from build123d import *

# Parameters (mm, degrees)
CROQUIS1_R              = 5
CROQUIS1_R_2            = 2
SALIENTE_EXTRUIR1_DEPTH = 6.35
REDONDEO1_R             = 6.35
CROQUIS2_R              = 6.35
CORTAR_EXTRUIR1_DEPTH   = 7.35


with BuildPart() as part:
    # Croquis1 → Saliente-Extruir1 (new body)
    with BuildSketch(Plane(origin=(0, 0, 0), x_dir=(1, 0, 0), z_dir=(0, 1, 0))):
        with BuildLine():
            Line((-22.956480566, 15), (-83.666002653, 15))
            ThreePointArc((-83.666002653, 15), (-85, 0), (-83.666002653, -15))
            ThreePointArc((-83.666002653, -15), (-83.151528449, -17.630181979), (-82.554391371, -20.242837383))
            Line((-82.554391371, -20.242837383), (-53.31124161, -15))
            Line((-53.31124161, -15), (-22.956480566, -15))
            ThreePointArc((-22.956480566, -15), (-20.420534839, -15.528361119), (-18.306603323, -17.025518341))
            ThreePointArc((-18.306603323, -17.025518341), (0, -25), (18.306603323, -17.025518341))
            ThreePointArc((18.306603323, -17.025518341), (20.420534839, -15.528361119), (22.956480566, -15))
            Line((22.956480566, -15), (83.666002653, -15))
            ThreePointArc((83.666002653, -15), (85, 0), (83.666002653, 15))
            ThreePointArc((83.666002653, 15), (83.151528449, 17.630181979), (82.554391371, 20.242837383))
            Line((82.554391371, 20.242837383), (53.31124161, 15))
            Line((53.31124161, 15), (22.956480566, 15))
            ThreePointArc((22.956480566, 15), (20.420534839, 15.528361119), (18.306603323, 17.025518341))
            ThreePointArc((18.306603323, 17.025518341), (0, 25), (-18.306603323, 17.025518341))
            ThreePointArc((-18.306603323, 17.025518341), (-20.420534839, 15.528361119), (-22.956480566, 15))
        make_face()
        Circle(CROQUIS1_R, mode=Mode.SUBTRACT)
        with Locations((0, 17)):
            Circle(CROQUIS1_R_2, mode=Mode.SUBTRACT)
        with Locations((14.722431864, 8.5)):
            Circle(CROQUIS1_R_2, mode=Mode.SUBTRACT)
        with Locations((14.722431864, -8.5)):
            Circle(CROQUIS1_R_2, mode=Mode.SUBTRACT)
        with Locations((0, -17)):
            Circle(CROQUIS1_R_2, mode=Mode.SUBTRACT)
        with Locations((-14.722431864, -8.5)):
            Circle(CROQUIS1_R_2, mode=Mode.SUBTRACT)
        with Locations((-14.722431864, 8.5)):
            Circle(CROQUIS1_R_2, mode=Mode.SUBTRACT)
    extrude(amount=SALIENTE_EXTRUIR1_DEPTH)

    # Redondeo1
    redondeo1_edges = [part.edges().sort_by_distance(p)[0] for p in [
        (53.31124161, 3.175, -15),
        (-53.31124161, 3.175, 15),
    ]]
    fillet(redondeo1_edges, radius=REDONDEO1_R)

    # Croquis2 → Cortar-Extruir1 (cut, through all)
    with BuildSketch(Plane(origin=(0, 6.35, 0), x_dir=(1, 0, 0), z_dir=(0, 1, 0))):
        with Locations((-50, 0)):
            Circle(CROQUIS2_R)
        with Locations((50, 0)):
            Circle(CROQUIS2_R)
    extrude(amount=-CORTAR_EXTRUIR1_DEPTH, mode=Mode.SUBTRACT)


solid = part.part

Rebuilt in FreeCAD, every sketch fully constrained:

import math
import FreeCAD as App
import Part
import Sketcher


def edges_at(feature, points):
    """Names of the edges that pass closest to the given points."""
    edges = feature.Shape.Edges
    near = lambda p: min(range(len(edges)), key=lambda i: edges[i].distToShape(Part.Vertex(*p))[0])
    return sorted({f"Edge{near(p) + 1}" for p in points})

doc = App.newDocument("Part")
body = doc.addObject("PartDesign::Body", "Body")

# Sketch on XZ plane
sketch1 = doc.addObject("Sketcher::SketchObject", "Sketch")
body.addObject(sketch1)
sketch1.AttachmentSupport = (doc.XZ_Plane, [""])
sketch1.MapMode = "FlatFace"
sketch1.addGeometry([
    Part.LineSegment(App.Vector(-22.956481, -15, 0), App.Vector(-83.666003, -15, 0)),  # 0
    Part.ArcOfCircle(Part.Circle(App.Vector(0, 0, 0), App.Vector(0, 0, 1), 85), math.radians(169.835751), math.radians(190.164249)),  # 1
    Part.ArcOfCircle(Part.Circle(App.Vector(-0.000001, 0, 0), App.Vector(0, 0, 1), 84.999999), math.radians(166.222562), math.radians(169.835751)),  # 2
    Part.LineSegment(App.Vector(-82.554391, 20.242837, 0), App.Vector(-53.311242, 15, 0)),  # 3
    Part.LineSegment(App.Vector(-53.311242, 15, 0), App.Vector(-22.956481, 15, 0)),  # 4
    Part.ArcOfCircle(Part.Circle(App.Vector(-22.956481, 21.35, 0), App.Vector(0, 0, 1), 6.35), math.radians(-90), math.radians(-42.923458)),  # 5
    Part.ArcOfCircle(Part.Circle(App.Vector(0, 0, 0), App.Vector(0, 0, 1), 25), math.radians(42.923458), math.radians(137.076542)),  # 6
    Part.ArcOfCircle(Part.Circle(App.Vector(22.956481, 21.35, 0), App.Vector(0, 0, 1), 6.35), math.radians(-137.076542), math.radians(-90)),  # 7
    Part.LineSegment(App.Vector(22.956481, 15, 0), App.Vector(83.666003, 15, 0)),  # 8
    Part.ArcOfCircle(Part.Circle(App.Vector(0, 0, 0), App.Vector(0, 0, 1), 85), math.radians(-10.164249), math.radians(10.164249)),  # 9
    Part.ArcOfCircle(Part.Circle(App.Vector(0.000001, 0, 0), App.Vector(0, 0, 1), 84.999999), math.radians(-13.777438), math.radians(-10.164249)),  # 10
    Part.LineSegment(App.Vector(82.554391, -20.242837, 0), App.Vector(53.311242, -15, 0)),  # 11
    Part.LineSegment(App.Vector(53.311242, -15, 0), App.Vector(22.956481, -15, 0)),  # 12
    Part.ArcOfCircle(Part.Circle(App.Vector(22.956481, -21.35, 0), App.Vector(0, 0, 1), 6.35), math.radians(90), math.radians(137.076542)),  # 13
    Part.ArcOfCircle(Part.Circle(App.Vector(0, 0, 0), App.Vector(0, 0, 1), 25), math.radians(-137.076542), math.radians(-42.923458)),  # 14
    Part.ArcOfCircle(Part.Circle(App.Vector(-22.956481, -21.35, 0), App.Vector(0, 0, 1), 6.35), math.radians(42.923458), math.radians(90)),  # 15
    Part.Circle(App.Vector(-14.722432, 8.5, 0), App.Vector(0, 0, 1), 2),  # 16
    Part.Circle(App.Vector(0, 17, 0), App.Vector(0, 0, 1), 2),  # 17
    Part.Circle(App.Vector(14.722432, 8.5, 0), App.Vector(0, 0, 1), 2),  # 18
    Part.Circle(App.Vector(-14.722432, -8.5, 0), App.Vector(0, 0, 1), 2),  # 19
    Part.Circle(App.Vector(0, 0, 0), App.Vector(0, 0, 1), 5),  # 20
    Part.Circle(App.Vector(14.722432, -8.5, 0), App.Vector(0, 0, 1), 2),  # 21
    Part.Circle(App.Vector(0, -17, 0), App.Vector(0, 0, 1), 2),  # 22
], False)
sketch1.addConstraint([
    Sketcher.Constraint("Coincident", 0, 2, 1, 2),
    Sketcher.Constraint("Tangent", 1, 1, 2, 2),
    Sketcher.Constraint("Coincident", 2, 1, 3, 1),
    Sketcher.Constraint("Coincident", 3, 2, 4, 1),
    Sketcher.Constraint("Tangent", 4, 2, 5, 1),
    Sketcher.Constraint("Tangent", 5, 2, 6, 2),
    Sketcher.Constraint("Tangent", 6, 1, 7, 1),
    Sketcher.Constraint("Tangent", 7, 2, 8, 1),
    Sketcher.Constraint("Coincident", 8, 2, 9, 2),
    Sketcher.Constraint("Tangent", 9, 1, 10, 2),
    Sketcher.Constraint("Coincident", 10, 1, 11, 1),
    Sketcher.Constraint("Coincident", 11, 2, 12, 1),
    Sketcher.Constraint("Tangent", 12, 2, 13, 1),
    Sketcher.Constraint("Tangent", 13, 2, 14, 2),
    Sketcher.Constraint("Tangent", 14, 1, 15, 1),
    Sketcher.Constraint("Tangent", 15, 2, 0, 1),
    Sketcher.Constraint("Horizontal", 0),
    Sketcher.Constraint("Horizontal", 4),
    Sketcher.Constraint("Horizontal", 8),
    Sketcher.Constraint("Horizontal", 12),
    Sketcher.Constraint("Coincident", 1, 3, -1, 1),
    Sketcher.Constraint("Coincident", 6, 3, -1, 1),
    Sketcher.Constraint("Coincident", 9, 3, -1, 1),
    Sketcher.Constraint("Coincident", 14, 3, -1, 1),
    Sketcher.Constraint("Coincident", 20, 3, -1, 1),
    Sketcher.Constraint("Equal", 1, 2),
    Sketcher.Constraint("Equal", 5, 7),
    Sketcher.Constraint("Equal", 2, 9),
    Sketcher.Constraint("Equal", 9, 10),
    Sketcher.Constraint("Equal", 7, 13),
    Sketcher.Constraint("Equal", 6, 14),
    Sketcher.Constraint("Equal", 13, 15),
    Sketcher.Constraint("Equal", 16, 17),
    Sketcher.Constraint("Equal", 17, 18),
    Sketcher.Constraint("Equal", 18, 19),
    Sketcher.Constraint("Equal", 19, 21),
    Sketcher.Constraint("Equal", 21, 22),
    Sketcher.Constraint("Symmetric", 18, 3, 19, 3, -1, 1),
    Sketcher.Constraint("Symmetric", 16, 3, 21, 3, -1, 1),
    Sketcher.Constraint("Symmetric", 17, 3, 22, 3, -1, 1),
    Sketcher.Constraint("Symmetric", 3, 2, 11, 2, -1, 1),
    Sketcher.Constraint("Symmetric", 16, 3, 18, 3, -2),
    Sketcher.Constraint("PointOnObject", 17, 3, -2),
    Sketcher.Constraint("Parallel", 3, 11),
    Sketcher.Constraint("Horizontal", 5, 3, 7, 3),
    Sketcher.Constraint("Horizontal", 13, 3, 15, 3),
    Sketcher.Constraint("Horizontal", 1, 1, 3, 2),
    Sketcher.Constraint("Horizontal", 0, 2, 9, 1),
    Sketcher.Constraint("Diameter", 16, 4.0),
    Sketcher.Constraint("Diameter", 20, 10.0),
    Sketcher.Constraint("Radius", 1, 85.0),
    Sketcher.Constraint("Radius", 6, 25.0),
    Sketcher.Constraint("Radius", 5, 6.35),
    Sketcher.Constraint("DistanceY", -1, 1, 17, 3, 17.0),
    Sketcher.Constraint("DistanceY", 0, 2, -1, 1, 15.0),
    Sketcher.Constraint("DistanceY", -1, 1, 16, 3, 8.5),
    Sketcher.Constraint("DistanceX", 4, 1, 4, 2, 30.354761),
    Sketcher.Constraint("Distance", 3, 29.709412),
    Sketcher.Constraint("DistanceX", 16, 3, -1, 1, 14.722432),
])
pad1 = doc.addObject("PartDesign::Pad", "Pad")
body.addObject(pad1)
pad1.Profile = sketch1
pad1.Length = 6.35
pad1.Reversed = True
doc.recompute()

fillet = doc.addObject("PartDesign::Fillet", "Fillet")
body.addObject(fillet)
fillet.Base = (pad1, edges_at(pad1, [(53.311, 3.175, -15), (-53.311, 3.175, 15)]))
fillet.Radius = 6.35

# Sketch on XZ plane
sketch2 = doc.addObject("Sketcher::SketchObject", "Sketch001")
body.addObject(sketch2)
sketch2.AttachmentSupport = (doc.XZ_Plane, [""])
sketch2.MapMode = "FlatFace"
sketch2.AttachmentOffset = App.Placement(App.Vector(0, 0, -6.35), App.Rotation())
sketch2.addGeometry([
    Part.Circle(App.Vector(-50, 0, 0), App.Vector(0, 0, 1), 6.35),
    Part.Circle(App.Vector(50, 0, 0), App.Vector(0, 0, 1), 6.35),
], False)
sketch2.addConstraint([
    Sketcher.Constraint("Equal", 0, 1),
    Sketcher.Constraint("Symmetric", 0, 3, 1, 3, -1, 1),
    Sketcher.Constraint("PointOnObject", 0, 3, -1),
    Sketcher.Constraint("Diameter", 0, 12.7),
    Sketcher.Constraint("DistanceX", 0, 3, -1, 1, 50.0),
])
pocket1 = doc.addObject("PartDesign::Pocket", "Pocket")
body.addObject(pocket1)
pocket1.Profile = sketch2
pocket1.Type = "ThroughAll"
pocket1.Reversed = True

doc.recompute()
